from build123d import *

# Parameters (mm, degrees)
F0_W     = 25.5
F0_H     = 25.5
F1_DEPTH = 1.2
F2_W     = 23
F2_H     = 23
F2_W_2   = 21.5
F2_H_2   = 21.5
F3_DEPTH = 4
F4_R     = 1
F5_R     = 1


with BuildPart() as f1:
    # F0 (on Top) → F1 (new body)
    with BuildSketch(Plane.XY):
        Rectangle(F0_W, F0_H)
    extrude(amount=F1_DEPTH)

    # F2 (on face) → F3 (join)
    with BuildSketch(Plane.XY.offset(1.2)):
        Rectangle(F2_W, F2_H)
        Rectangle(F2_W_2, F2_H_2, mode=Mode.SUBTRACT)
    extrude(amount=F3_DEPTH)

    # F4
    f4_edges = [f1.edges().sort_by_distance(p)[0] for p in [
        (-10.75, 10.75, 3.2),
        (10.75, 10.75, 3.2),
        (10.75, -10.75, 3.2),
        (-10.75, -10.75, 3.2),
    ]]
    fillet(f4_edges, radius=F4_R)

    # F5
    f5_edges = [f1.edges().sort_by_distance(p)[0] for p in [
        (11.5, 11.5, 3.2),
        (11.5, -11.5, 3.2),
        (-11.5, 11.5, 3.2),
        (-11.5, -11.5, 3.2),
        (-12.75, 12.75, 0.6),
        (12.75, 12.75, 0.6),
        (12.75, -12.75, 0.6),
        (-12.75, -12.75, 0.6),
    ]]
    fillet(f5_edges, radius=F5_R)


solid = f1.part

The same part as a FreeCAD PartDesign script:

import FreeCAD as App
import Part
import Sketcher


def edges_at(feature, points):
    """Names of the edges that pass closest to the given points."""
    edges = feature.Shape.Edges
    near = lambda p: min(range(len(edges)), key=lambda i: edges[i].distToShape(Part.Vertex(*p))[0])
    return sorted({f"Edge{near(p) + 1}" for p in points})

doc = App.newDocument("Part")
body = doc.addObject("PartDesign::Body", "Body")

sketch1 = body.newObject("Sketcher::SketchObject", "Sketch")
sketch1.AttachmentSupport = (doc.getObject("XY_Plane"), [""])
sketch1.MapMode = "FlatFace"
sketch1.addGeometry(Part.LineSegment(App.Vector(-13, 13, 0), App.Vector(-13, -13, 0)), False)
sketch1.addGeometry(Part.LineSegment(App.Vector(-13, -13, 0), App.Vector(13, -13, 0)), False)
sketch1.addGeometry(Part.LineSegment(App.Vector(13, -13, 0), App.Vector(13, 13, 0)), False)
sketch1.addGeometry(Part.LineSegment(App.Vector(13, 13, 0), App.Vector(-13, 13, 0)), False)
sketch1.addConstraint(Sketcher.Constraint("Coincident", 0, 2, 1, 1))
sketch1.addConstraint(Sketcher.Constraint("Coincident", 1, 2, 2, 1))
sketch1.addConstraint(Sketcher.Constraint("Coincident", 2, 2, 3, 1))
sketch1.addConstraint(Sketcher.Constraint("Coincident", 3, 2, 0, 1))
sketch1.addConstraint(Sketcher.Constraint("Vertical", 0))
sketch1.addConstraint(Sketcher.Constraint("Horizontal", 1))
sketch1.addConstraint(Sketcher.Constraint("Vertical", 2))
sketch1.addConstraint(Sketcher.Constraint("Horizontal", 3))
sketch1.addConstraint(Sketcher.Constraint("Symmetric", 0, 2, 2, 2, -1, 1))
sketch1.addConstraint(Sketcher.Constraint("Equal", 3, 0))
sketch1.addConstraint(Sketcher.Constraint("DistanceX", 1, 1, 1, 2, 25.5))
pad1 = body.newObject("PartDesign::Pad", "Pad")
pad1.Profile = sketch1
pad1.Length = 1.2

sketch2 = body.newObject("Sketcher::SketchObject", "Sketch001")
sketch2.AttachmentSupport = (doc.getObject("XY_Plane"), [""])
sketch2.MapMode = "FlatFace"
sketch2.AttachmentOffset = App.Placement(App.Vector(0, 0, 1.2), App.Rotation())
sketch2.addGeometry(Part.LineSegment(App.Vector(-12, 12, 0), App.Vector(-12, -12, 0)), False)
sketch2.addGeometry(Part.LineSegment(App.Vector(-12, -12, 0), App.Vector(12, -12, 0)), False)
sketch2.addGeometry(Part.LineSegment(App.Vector(12, -12, 0), App.Vector(12, 12, 0)), False)
sketch2.addGeometry(Part.LineSegment(App.Vector(12, 12, 0), App.Vector(-12, 12, 0)), False)
sketch2.addGeometry(Part.LineSegment(App.Vector(11, -11, 0), App.Vector(-11, -11, 0)), False)
sketch2.addGeometry(Part.LineSegment(App.Vector(-11, -11, 0), App.Vector(-11, 11, 0)), False)
sketch2.addGeometry(Part.LineSegment(App.Vector(-11, 11, 0), App.Vector(11, 11, 0)), False)
sketch2.addGeometry(Part.LineSegment(App.Vector(11, 11, 0), App.Vector(11, -11, 0)), False)
sketch2.addConstraint(Sketcher.Constraint("Coincident", 0, 2, 1, 1))
sketch2.addConstraint(Sketcher.Constraint("Coincident", 1, 2, 2, 1))
sketch2.addConstraint(Sketcher.Constraint("Coincident", 2, 2, 3, 1))
sketch2.addConstraint(Sketcher.Constraint("Coincident", 3, 2, 0, 1))
sketch2.addConstraint(Sketcher.Constraint("Coincident", 4, 2, 5, 1))
sketch2.addConstraint(Sketcher.Constraint("Coincident", 5, 2, 6, 1))
sketch2.addConstraint(Sketcher.Constraint("Coincident", 6, 2, 7, 1))
sketch2.addConstraint(Sketcher.Constraint("Coincident", 7, 2, 4, 1))
sketch2.addConstraint(Sketcher.Constraint("Vertical", 0))
sketch2.addConstraint(Sketcher.Constraint("Horizontal", 1))
sketch2.addConstraint(Sketcher.Constraint("Vertical", 2))
sketch2.addConstraint(Sketcher.Constraint("Horizontal", 3))
sketch2.addConstraint(Sketcher.Constraint("Horizontal", 4))
sketch2.addConstraint(Sketcher.Constraint("Vertical", 5))
sketch2.addConstraint(Sketcher.Constraint("Horizontal", 6))
sketch2.addConstraint(Sketcher.Constraint("Vertical", 7))
sketch2.addConstraint(Sketcher.Constraint("Symmetric", 0, 2, 2, 2, -1, 1))
sketch2.addConstraint(Sketcher.Constraint("Symmetric", 4, 2, 6, 2, -1, 1))
sketch2.addConstraint(Sketcher.Constraint("Equal", 3, 0))
sketch2.addConstraint(Sketcher.Constraint("Equal", 6, 5))
sketch2.addConstraint(Sketcher.Constraint("DistanceX", 1, 1, 1, 2, 23.0))
sketch2.addConstraint(Sketcher.Constraint("DistanceX", 4, 2, 4, 1, 21.5))
pad2 = body.newObject("PartDesign::Pad", "Pad001")
pad2.Profile = sketch2
pad2.Length = 4
doc.recompute()

fillet = body.newObject("PartDesign::Fillet", "Fillet")
fillet.Base = (pad2, edges_at(pad2, [
    (-10.75, 10.75, 3.2),
    (10.75, 10.75, 3.2),
    (10.75, -10.75, 3.2),
    (-10.75, -10.75, 3.2),
]))
fillet.Radius = 1
doc.recompute()

fillet2 = body.newObject("PartDesign::Fillet", "Fillet001")
fillet2.Base = (fillet, edges_at(fillet, [
    (11.5, 11.5, 3.2),
    (11.5, -11.5, 3.2),
    (-11.5, 11.5, 3.2),
    (-11.5, -11.5, 3.2),
    (-12.75, 12.75, 0.6),
    (12.75, 12.75, 0.6),
    (12.75, -12.75, 0.6),
    (-12.75, -12.75, 0.6),
]))
fillet2.Radius = 1

doc.recompute()
